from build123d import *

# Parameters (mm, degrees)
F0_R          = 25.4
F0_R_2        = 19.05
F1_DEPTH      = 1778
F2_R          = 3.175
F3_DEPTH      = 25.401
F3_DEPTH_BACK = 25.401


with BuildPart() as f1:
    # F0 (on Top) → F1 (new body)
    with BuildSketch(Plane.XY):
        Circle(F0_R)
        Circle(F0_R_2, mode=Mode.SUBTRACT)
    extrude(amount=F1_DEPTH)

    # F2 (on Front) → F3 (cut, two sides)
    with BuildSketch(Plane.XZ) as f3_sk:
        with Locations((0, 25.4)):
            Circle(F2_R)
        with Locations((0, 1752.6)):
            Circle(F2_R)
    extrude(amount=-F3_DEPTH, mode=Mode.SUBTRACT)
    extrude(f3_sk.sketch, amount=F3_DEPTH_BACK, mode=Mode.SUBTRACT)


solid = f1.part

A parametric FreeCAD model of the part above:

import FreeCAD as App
import Part
import Sketcher
from FreeCAD import Vector
Q = App.Units.Quantity

doc = App.newDocument("Part")
body = doc.addObject("PartDesign::Body", "Body")

# Sketch on XY plane
sketch1 = doc.addObject("Sketcher::SketchObject", "Sketch")
body.addObject(sketch1)
sketch1.AttachmentSupport = (doc.XY_Plane, [""])
sketch1.MapMode = "FlatFace"
sketch1.addGeometry(Part.Circle(Vector(0, 0, 0), Vector(0, 0, 1), 25.4), False)
sketch1.addGeometry(Part.Circle(Vector(0, 0, 0), Vector(0, 0, 1), 19.05), False)
sketch1.addConstraint(Sketcher.Constraint("Coincident", 0, 3, -1, 1))
sketch1.addConstraint(Sketcher.Constraint("Coincident", 1, 3, -1, 1))
sketch1.addConstraint(Sketcher.Constraint("Diameter", 0, Q("2 in")))
sketch1.addConstraint(Sketcher.Constraint("Diameter", 1, Q("1.5 in")))
pad1 = doc.addObject("PartDesign::Pad", "Pad")
body.addObject(pad1)
pad1.Profile = sketch1
pad1.Length = Q("70 in")

# Sketch on XZ plane
sketch2 = doc.addObject("Sketcher::SketchObject", "Sketch001")
body.addObject(sketch2)
sketch2.AttachmentSupport = (doc.XZ_Plane, [""])
sketch2.MapMode = "FlatFace"
sketch2.addGeometry(Part.Circle(Vector(0, 25.4, 0), Vector(0, 0, 1), 3.175), False)
sketch2.addGeometry(Part.Circle(Vector(0, 1752.6, 0), Vector(0, 0, 1), 3.175), False)
sketch2.addConstraint(Sketcher.Constraint("Equal", 0, 1))
sketch2.addConstraint(Sketcher.Constraint("PointOnObject", 0, 3, -2))
sketch2.addConstraint(Sketcher.Constraint("PointOnObject", 1, 3, -2))
sketch2.addConstraint(Sketcher.Constraint("Diameter", 0, Q("0.25 in")))
sketch2.addConstraint(Sketcher.Constraint("DistanceY", -1, 1, 0, 3, Q("1 in")))
sketch2.addConstraint(Sketcher.Constraint("DistanceY", -1, 1, 1, 3, Q("69 in")))
pocket1 = doc.addObject("PartDesign::Pocket", "Pocket")
body.addObject(pocket1)
pocket1.Profile = sketch2
pocket1.Type = "ThroughAll"
pocket1.Midplane = True

doc.recompute()
